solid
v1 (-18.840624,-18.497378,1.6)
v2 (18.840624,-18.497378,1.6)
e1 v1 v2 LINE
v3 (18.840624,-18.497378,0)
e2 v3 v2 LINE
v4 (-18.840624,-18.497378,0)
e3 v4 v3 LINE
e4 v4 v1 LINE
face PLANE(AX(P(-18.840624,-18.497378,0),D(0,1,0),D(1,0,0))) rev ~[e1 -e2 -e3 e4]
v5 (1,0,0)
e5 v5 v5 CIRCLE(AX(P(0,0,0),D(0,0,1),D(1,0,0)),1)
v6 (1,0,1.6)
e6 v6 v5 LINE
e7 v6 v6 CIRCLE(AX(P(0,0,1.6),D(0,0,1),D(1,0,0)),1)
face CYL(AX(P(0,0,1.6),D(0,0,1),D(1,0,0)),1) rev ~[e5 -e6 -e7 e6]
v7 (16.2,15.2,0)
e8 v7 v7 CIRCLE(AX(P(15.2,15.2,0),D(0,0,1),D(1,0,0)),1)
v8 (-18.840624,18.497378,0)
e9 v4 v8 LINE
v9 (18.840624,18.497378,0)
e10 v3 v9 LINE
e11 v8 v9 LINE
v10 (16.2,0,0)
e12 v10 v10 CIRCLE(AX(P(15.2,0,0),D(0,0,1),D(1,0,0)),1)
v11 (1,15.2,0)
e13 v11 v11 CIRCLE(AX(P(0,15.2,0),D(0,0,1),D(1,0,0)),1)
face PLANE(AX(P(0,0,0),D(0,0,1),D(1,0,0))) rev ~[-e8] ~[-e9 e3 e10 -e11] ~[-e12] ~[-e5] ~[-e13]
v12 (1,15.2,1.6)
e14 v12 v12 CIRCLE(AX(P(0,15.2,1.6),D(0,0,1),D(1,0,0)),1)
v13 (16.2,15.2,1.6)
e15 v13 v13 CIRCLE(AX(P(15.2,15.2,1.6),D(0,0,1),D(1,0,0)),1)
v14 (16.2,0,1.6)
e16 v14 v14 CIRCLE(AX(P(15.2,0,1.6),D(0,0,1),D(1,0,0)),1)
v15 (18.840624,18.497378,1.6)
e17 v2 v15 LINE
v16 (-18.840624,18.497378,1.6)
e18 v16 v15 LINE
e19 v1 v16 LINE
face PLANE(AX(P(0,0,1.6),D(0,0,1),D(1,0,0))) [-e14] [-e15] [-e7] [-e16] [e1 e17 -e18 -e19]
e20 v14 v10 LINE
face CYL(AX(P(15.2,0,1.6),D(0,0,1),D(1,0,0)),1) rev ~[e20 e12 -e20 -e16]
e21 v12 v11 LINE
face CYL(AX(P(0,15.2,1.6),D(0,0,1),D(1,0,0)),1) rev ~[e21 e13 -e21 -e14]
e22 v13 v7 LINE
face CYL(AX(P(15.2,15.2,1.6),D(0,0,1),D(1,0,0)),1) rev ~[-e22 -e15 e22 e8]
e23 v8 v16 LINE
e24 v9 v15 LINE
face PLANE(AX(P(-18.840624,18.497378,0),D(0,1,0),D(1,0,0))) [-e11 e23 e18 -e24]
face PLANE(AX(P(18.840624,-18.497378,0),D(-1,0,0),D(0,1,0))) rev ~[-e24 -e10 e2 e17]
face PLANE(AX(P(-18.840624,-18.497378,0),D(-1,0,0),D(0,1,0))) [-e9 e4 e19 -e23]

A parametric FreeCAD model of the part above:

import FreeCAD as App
import Part
import Sketcher
Q = App.Units.Quantity

doc = App.newDocument("Part")
body = doc.addObject("PartDesign::Body", "Body")

sketch1 = body.newObject("Sketcher::SketchObject", "Sketch")
sketch1.AttachmentSupport = (doc.getObject("XY_Plane"), [""])
sketch1.MapMode = "FlatFace"
sketch1.addGeometry([
    Part.LineSegment(App.Vector(-19, 18, 0), App.Vector(-19, -18, 0)),
    Part.LineSegment(App.Vector(-19, -18, 0), App.Vector(19, -18, 0)),
    Part.LineSegment(App.Vector(19, -18, 0), App.Vector(19, 18, 0)),
    Part.LineSegment(App.Vector(19, 18, 0), App.Vector(-19, 18, 0)),
], False)
sketch1.addConstraint([
    Sketcher.Constraint("Coincident", 0, 2, 1, 1),
    Sketcher.Constraint("Coincident", 1, 2, 2, 1),
    Sketcher.Constraint("Coincident", 2, 2, 3, 1),
    Sketcher.Constraint("Coincident", 3, 2, 0, 1),
    Sketcher.Constraint("Vertical", 0),
    Sketcher.Constraint("Horizontal", 1),
    Sketcher.Constraint("Vertical", 2),
    Sketcher.Constraint("Horizontal", 3),
    Sketcher.Constraint("Symmetric", 0, 2, 2, 2, -1, 1),
    Sketcher.Constraint("DistanceX", 1, 1, 1, 2, Q("37.681248 mm")),
    Sketcher.Constraint("DistanceY", 0, 2, 0, 1, Q("36.994756 mm")),
])
pad1 = body.newObject("PartDesign::Pad", "Pad")
pad1.Profile = sketch1
pad1.Length = 1.6

sketch2 = body.newObject("Sketcher::SketchObject", "Sketch001")
sketch2.AttachmentSupport = (doc.getObject("XY_Plane"), [""])
sketch2.MapMode = "FlatFace"
sketch2.AttachmentOffset = App.Placement(App.Vector(0, 0, 1.6), App.Rotation())
sketch2.addGeometry([
    Part.Circle(App.Vector(0, 0, 0), App.Vector(0, 0, 1), 1),
    Part.Circle(App.Vector(0, 15.2, 0), App.Vector(0, 0, 1), 1),
    Part.Circle(App.Vector(15.2, 0, 0), App.Vector(0, 0, 1), 1),
    Part.Circle(App.Vector(15.2, 15.2, 0), App.Vector(0, 0, 1), 1),
], False)
sketch2.addConstraint([
    Sketcher.Constraint("Coincident", 0, 3, -1, 1),
    Sketcher.Constraint("Equal", 0, 1),
    Sketcher.Constraint("Equal", 1, 2),
    Sketcher.Constraint("Equal", 2, 3),
    Sketcher.Constraint("PointOnObject", 1, 3, -2),
    Sketcher.Constraint("PointOnObject", 2, 3, -1),
    Sketcher.Constraint("Horizontal", 1, 3, 3, 3),
    Sketcher.Constraint("Vertical", 2, 3, 3, 3),
    Sketcher.Constraint("Diameter", 0, Q("2 mm")),
    Sketcher.Constraint("DistanceY", -1, 1, 1, 3, Q("15.2 mm")),
    Sketcher.Constraint("DistanceX", -1, 1, 2, 3, Q("15.2 mm")),
])
pocket1 = body.newObject("PartDesign::Pocket", "Pocket")
pocket1.Profile = sketch2
pocket1.Length = 25

doc.recompute()
